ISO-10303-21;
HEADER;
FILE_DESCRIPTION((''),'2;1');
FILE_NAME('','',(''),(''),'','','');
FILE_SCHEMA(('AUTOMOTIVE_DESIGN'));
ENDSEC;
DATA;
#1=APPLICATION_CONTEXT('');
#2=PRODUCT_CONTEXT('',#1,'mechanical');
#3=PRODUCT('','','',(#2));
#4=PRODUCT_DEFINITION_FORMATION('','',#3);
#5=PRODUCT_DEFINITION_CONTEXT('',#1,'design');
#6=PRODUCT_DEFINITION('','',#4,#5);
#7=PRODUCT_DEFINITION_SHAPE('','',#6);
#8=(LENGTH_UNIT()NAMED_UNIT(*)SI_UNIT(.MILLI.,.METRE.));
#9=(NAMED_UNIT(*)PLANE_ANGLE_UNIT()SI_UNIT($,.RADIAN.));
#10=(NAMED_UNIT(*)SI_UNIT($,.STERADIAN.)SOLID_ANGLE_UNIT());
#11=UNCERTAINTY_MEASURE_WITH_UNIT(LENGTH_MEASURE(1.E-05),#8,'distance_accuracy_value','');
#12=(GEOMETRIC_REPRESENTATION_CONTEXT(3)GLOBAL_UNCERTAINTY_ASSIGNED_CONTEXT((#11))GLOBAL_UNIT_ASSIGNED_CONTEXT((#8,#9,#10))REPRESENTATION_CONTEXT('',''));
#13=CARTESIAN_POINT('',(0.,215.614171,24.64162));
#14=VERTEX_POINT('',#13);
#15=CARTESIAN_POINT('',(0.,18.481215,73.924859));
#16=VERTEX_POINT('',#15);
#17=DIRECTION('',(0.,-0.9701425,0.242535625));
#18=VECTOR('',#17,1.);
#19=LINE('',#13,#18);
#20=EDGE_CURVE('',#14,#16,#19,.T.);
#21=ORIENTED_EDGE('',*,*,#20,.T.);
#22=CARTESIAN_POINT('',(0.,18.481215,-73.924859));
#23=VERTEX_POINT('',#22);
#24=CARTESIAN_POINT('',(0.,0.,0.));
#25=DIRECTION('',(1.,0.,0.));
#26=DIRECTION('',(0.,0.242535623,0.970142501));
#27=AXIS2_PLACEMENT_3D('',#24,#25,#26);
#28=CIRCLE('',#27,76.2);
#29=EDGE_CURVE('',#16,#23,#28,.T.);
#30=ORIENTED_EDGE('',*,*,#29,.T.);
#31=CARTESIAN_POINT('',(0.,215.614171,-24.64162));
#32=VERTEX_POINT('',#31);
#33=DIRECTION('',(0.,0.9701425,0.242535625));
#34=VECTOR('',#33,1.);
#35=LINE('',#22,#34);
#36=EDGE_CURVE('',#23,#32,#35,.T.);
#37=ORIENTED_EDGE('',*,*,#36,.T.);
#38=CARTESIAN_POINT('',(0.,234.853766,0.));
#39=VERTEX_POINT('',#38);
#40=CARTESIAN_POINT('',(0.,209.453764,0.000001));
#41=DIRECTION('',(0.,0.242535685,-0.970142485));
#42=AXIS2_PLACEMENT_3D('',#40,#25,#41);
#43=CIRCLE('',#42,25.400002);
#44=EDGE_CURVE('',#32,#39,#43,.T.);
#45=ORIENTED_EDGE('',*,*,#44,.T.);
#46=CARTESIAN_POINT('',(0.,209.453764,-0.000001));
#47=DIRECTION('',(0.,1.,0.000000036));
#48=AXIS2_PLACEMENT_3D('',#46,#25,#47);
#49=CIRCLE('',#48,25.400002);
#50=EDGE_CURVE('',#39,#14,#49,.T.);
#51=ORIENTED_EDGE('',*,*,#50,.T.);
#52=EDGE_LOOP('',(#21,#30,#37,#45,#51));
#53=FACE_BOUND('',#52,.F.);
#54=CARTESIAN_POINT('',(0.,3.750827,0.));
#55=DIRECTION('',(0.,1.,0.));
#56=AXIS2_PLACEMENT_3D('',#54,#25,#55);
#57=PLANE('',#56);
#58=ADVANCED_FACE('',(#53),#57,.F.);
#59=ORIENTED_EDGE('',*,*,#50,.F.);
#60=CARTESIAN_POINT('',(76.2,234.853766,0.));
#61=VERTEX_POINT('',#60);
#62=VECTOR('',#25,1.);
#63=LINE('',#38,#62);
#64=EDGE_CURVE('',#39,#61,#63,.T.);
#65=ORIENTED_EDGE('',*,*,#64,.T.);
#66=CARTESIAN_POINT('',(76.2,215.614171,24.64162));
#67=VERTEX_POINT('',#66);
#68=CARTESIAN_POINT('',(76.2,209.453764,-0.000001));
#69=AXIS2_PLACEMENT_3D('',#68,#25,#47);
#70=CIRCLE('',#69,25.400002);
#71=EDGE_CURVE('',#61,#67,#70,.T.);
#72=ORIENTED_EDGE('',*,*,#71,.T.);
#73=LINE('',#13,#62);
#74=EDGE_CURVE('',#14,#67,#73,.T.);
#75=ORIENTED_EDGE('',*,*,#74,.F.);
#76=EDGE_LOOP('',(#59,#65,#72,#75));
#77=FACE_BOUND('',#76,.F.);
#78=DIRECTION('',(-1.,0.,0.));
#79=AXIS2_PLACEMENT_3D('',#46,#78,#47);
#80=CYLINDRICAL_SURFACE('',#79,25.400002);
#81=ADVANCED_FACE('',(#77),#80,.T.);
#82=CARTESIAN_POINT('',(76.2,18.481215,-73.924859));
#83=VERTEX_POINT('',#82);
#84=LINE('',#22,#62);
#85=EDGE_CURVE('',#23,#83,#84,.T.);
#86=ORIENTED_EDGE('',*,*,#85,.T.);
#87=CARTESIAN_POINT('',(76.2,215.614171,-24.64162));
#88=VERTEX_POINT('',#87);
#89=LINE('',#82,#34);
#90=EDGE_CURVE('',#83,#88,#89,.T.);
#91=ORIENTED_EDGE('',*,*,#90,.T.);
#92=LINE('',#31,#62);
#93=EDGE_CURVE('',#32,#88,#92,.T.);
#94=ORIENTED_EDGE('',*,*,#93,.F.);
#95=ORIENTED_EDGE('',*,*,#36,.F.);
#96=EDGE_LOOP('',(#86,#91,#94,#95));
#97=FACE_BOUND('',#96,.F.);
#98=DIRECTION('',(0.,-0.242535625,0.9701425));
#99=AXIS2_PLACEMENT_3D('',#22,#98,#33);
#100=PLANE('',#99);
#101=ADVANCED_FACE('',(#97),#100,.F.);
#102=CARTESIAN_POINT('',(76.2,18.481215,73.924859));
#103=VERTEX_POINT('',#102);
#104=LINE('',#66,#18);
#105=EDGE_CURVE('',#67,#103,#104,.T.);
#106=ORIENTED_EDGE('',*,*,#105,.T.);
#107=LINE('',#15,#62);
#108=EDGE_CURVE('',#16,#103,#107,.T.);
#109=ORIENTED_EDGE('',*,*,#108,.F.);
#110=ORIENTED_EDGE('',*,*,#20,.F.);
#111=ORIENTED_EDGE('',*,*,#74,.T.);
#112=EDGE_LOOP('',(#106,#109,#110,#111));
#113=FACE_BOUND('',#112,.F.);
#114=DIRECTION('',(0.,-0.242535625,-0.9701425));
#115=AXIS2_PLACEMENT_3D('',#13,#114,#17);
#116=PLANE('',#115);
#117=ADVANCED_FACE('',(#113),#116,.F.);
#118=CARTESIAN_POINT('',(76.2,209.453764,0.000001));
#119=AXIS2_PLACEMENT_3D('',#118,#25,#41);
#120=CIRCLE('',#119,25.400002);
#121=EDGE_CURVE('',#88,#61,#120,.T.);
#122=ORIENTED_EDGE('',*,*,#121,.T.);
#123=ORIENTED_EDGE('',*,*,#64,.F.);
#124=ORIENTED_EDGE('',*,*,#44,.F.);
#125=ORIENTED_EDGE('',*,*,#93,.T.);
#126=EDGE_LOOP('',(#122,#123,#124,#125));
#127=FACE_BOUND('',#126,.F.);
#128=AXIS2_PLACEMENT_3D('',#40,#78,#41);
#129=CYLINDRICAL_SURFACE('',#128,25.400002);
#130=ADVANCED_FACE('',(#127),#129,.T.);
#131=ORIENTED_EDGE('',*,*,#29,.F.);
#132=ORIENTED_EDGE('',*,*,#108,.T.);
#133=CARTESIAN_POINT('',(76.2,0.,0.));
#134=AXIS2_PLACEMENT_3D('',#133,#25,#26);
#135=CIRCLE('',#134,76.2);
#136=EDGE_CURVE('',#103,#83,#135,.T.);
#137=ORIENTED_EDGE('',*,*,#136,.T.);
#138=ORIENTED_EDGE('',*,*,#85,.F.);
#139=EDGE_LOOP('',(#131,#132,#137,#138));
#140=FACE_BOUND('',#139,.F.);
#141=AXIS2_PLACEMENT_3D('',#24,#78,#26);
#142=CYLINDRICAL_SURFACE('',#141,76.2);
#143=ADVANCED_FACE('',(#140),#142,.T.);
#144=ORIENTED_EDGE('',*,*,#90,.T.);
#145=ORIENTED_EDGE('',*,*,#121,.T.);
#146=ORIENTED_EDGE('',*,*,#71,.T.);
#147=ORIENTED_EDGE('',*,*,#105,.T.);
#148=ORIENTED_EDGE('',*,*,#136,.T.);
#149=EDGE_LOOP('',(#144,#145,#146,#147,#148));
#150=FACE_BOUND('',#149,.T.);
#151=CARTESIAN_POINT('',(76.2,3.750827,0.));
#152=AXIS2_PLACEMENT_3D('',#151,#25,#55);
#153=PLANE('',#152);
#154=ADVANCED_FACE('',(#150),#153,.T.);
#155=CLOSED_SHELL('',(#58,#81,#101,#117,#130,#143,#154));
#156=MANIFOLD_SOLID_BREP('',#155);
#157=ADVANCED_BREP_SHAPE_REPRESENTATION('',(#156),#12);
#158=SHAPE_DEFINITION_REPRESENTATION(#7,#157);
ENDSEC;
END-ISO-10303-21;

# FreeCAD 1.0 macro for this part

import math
import FreeCAD as App
import Part
import Sketcher
Q = App.Units.Quantity

doc = App.newDocument("Part")
body = doc.addObject("PartDesign::Body", "Body")

sketch1 = body.newObject("Sketcher::SketchObject", "Sketch")
sketch1.AttachmentSupport = (doc.getObject("YZ_Plane"), [""])
sketch1.MapMode = "FlatFace"
sketch1.addGeometry([
    Part.ArcOfCircle(Part.Circle(App.Vector(0, 0, 0), App.Vector(0, 0, 1), 76), math.radians(76), math.radians(284)),
    Part.LineSegment(App.Vector(18, -74, 0), App.Vector(216, -25, 0)),
    Part.ArcOfCircle(Part.Circle(App.Vector(209, 0, 0), App.Vector(0, 0, 1), 25), math.radians(-76), math.radians(0)),
    Part.ArcOfCircle(Part.Circle(App.Vector(209, 0, 0), App.Vector(0, 0, 1), 25), math.radians(0), math.radians(76)),
    Part.LineSegment(App.Vector(216, 25, 0), App.Vector(18, 74, 0)),
], False)
sketch1.addConstraint([
    Sketcher.Constraint("Tangent", 0, 2, 1, 1),
    Sketcher.Constraint("Tangent", 1, 2, 2, 1),
    Sketcher.Constraint("Tangent", 2, 2, 3, 1),
    Sketcher.Constraint("Tangent", 3, 2, 4, 1),
    Sketcher.Constraint("Tangent", 4, 2, 0, 1),
    Sketcher.Constraint("Coincident", 0, 3, -1, 1),
    Sketcher.Constraint("Equal", 2, 3),
    Sketcher.Constraint("PointOnObject", 2, 3, -1),
    Sketcher.Constraint("PointOnObject", 2, 2, -1),
    Sketcher.Constraint("Radius", 0, Q("3 in")),
    Sketcher.Constraint("Radius", 2, Q("1.0000001 in")),
    Sketcher.Constraint("Distance", 1, Q("8 in")),
])
pad1 = body.newObject("PartDesign::Pad", "Pad")
pad1.Profile = sketch1
pad1.Length = Q("3 in")

doc.recompute()
